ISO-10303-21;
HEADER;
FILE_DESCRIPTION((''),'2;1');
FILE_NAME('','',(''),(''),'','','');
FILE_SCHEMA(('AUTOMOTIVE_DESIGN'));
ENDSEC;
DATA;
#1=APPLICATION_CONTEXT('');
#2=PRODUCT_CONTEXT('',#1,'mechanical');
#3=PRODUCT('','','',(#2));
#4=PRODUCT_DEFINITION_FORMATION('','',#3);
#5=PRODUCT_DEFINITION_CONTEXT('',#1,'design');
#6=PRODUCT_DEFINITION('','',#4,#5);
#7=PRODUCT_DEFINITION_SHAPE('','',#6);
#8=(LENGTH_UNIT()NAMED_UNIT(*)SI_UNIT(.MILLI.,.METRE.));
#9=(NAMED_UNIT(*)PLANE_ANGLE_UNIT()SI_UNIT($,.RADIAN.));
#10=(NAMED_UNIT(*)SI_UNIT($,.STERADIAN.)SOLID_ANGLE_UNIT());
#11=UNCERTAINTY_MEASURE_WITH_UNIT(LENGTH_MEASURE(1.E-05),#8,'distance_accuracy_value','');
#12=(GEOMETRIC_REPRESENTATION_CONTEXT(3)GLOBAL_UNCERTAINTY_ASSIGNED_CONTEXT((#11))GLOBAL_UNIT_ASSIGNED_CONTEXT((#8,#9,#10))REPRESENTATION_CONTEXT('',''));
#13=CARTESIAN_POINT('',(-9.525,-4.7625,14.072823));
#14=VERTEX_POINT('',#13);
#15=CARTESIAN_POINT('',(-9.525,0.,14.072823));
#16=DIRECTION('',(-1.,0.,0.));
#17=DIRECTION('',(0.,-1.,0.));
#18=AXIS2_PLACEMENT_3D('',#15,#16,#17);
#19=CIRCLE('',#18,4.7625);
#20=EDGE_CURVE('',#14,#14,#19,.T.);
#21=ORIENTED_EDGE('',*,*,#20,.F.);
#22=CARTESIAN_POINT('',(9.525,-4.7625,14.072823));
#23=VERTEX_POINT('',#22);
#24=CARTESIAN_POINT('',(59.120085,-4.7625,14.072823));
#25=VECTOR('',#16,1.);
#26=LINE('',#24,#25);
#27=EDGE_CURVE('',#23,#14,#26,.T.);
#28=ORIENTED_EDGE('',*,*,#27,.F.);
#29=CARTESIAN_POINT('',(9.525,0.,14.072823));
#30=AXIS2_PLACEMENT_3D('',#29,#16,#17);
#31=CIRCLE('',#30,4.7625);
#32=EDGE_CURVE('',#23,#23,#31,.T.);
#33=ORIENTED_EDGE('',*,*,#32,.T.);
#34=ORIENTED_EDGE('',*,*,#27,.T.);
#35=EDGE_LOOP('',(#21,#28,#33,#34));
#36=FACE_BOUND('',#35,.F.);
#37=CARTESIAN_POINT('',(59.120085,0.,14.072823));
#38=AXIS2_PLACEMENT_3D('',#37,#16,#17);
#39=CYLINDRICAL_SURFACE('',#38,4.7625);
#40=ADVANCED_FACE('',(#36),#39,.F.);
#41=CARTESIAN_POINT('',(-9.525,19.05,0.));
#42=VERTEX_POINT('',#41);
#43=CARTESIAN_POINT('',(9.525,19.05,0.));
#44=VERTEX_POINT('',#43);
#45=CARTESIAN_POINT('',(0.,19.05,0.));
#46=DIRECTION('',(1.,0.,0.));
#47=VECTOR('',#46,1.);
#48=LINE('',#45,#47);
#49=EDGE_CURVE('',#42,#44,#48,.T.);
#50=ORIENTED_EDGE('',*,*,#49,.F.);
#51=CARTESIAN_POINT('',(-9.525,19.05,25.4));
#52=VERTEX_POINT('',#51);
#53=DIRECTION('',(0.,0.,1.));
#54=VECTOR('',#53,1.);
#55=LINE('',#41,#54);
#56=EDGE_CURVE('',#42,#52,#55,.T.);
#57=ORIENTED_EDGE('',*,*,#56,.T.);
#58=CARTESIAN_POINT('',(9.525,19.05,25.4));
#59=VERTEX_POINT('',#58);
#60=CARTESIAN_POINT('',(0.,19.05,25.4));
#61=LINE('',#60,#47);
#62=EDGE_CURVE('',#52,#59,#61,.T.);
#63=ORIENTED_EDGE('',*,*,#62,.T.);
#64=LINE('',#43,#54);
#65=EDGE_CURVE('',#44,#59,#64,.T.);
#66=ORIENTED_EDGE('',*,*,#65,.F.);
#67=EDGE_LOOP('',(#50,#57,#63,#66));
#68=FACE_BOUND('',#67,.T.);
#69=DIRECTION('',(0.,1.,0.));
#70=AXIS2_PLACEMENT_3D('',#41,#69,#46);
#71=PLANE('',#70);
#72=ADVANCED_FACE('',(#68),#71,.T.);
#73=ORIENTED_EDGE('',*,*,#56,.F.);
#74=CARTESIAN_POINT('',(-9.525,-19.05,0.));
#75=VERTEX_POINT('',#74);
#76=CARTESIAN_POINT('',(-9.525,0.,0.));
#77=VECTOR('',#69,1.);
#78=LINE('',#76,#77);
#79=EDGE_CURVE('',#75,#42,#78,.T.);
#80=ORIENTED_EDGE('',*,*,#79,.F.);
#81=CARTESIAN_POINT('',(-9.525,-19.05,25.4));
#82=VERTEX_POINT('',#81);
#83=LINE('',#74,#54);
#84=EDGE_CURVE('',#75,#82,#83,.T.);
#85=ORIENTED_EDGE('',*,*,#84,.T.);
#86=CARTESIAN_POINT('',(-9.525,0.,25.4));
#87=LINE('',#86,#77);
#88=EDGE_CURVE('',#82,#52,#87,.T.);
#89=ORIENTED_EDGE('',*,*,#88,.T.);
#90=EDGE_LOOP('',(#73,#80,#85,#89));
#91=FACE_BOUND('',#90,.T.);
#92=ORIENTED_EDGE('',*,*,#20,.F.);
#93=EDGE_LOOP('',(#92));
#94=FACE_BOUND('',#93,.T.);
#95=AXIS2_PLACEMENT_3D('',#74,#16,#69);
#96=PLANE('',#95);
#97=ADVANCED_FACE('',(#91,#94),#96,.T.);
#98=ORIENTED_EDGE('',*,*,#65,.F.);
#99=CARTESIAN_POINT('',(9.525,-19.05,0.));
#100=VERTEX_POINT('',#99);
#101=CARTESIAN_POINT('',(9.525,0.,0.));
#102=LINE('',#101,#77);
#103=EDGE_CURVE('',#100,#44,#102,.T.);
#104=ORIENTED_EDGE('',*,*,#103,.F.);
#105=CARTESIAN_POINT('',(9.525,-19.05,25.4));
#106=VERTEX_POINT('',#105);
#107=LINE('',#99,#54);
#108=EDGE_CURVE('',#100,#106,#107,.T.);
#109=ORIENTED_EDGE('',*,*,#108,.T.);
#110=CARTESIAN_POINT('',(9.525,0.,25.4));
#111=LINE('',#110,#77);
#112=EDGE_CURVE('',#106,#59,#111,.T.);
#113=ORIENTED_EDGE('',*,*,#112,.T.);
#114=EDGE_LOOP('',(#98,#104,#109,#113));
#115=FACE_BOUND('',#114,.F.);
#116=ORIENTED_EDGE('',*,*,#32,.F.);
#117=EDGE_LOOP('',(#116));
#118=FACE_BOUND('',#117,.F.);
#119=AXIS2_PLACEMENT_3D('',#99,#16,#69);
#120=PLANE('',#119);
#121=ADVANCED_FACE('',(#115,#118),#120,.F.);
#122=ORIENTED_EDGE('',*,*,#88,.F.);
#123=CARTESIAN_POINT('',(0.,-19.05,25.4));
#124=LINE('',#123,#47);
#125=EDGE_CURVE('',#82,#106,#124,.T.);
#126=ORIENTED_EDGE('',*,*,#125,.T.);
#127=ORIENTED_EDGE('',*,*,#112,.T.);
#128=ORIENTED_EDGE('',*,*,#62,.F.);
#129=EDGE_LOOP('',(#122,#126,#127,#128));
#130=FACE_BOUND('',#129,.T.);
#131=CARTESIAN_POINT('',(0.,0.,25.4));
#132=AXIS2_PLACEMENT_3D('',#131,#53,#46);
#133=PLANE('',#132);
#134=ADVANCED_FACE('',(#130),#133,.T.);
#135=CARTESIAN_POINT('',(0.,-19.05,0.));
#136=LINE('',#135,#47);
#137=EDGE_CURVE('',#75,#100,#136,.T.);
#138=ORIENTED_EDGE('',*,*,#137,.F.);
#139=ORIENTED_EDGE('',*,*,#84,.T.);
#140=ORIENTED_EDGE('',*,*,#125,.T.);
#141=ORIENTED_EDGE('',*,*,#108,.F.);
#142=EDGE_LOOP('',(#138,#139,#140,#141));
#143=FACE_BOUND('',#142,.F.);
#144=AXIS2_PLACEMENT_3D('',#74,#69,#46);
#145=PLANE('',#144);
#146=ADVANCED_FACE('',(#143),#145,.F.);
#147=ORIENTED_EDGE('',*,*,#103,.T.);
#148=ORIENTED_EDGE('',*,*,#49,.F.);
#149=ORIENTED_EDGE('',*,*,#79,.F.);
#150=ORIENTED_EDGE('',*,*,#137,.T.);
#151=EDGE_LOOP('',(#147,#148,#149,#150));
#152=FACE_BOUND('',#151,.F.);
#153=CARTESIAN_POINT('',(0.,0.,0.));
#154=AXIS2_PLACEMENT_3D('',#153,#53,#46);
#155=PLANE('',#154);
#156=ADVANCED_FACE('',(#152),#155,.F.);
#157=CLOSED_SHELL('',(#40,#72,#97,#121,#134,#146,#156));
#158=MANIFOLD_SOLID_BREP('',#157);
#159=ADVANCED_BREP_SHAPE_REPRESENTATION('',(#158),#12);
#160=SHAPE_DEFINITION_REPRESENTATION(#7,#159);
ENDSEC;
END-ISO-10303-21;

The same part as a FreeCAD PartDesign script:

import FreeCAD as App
import Part
import Sketcher
Q = App.Units.Quantity

doc = App.newDocument("Part")
body = doc.addObject("PartDesign::Body", "Body")

sketch1 = doc.addObject("Sketcher::SketchObject", "Sketch")
body.addObject(sketch1)
sketch1.AttachmentSupport = (doc.XY_Plane, [""])
sketch1.MapMode = "FlatFace"
sketch1.addGeometry([
    Part.LineSegment(App.Vector(-10, 19, 0), App.Vector(-10, -19, 0)),
    Part.LineSegment(App.Vector(-10, -19, 0), App.Vector(10, -19, 0)),
    Part.LineSegment(App.Vector(10, -19, 0), App.Vector(10, 19, 0)),
    Part.LineSegment(App.Vector(10, 19, 0), App.Vector(-10, 19, 0)),
], False)
sketch1.addConstraint([
    Sketcher.Constraint("Coincident", 0, 2, 1, 1),
    Sketcher.Constraint("Coincident", 1, 2, 2, 1),
    Sketcher.Constraint("Coincident", 2, 2, 3, 1),
    Sketcher.Constraint("Coincident", 3, 2, 0, 1),
    Sketcher.Constraint("Vertical", 0),
    Sketcher.Constraint("Horizontal", 1),
    Sketcher.Constraint("Vertical", 2),
    Sketcher.Constraint("Horizontal", 3),
    Sketcher.Constraint("Symmetric", 0, 2, 2, 2, -1, 1),
    Sketcher.Constraint("DistanceY", 0, 2, 0, 1, Q("1.5 in")),
    Sketcher.Constraint("DistanceX", 1, 1, 1, 2, Q("0.75 in")),
])
pad1 = doc.addObject("PartDesign::Pad", "Pad")
body.addObject(pad1)
pad1.Profile = sketch1
pad1.Length = Q("1 in")

sketch2 = doc.addObject("Sketcher::SketchObject", "Sketch001")
body.addObject(sketch2)
sketch2.AttachmentSupport = (doc.YZ_Plane, [""])
sketch2.MapMode = "FlatFace"
sketch2.AttachmentOffset = App.Placement(App.Vector(0, 0, 0.375 * 25.4), App.Rotation())
sketch2.addGeometry(Part.Circle(App.Vector(0, 14.1, 0), App.Vector(0, 0, 1), 4.8), False)
sketch2.addConstraint([
    Sketcher.Constraint("PointOnObject", 0, 3, -2),
    Sketcher.Constraint("Diameter", 0, Q("0.375 in")),
    Sketcher.Constraint("DistanceY", -1, 1, 0, 3, Q("14.072823 mm")),
])
doc.recompute()
hole = doc.addObject("PartDesign::Hole", "Hole")
body.addObject(hole)
hole.Profile = sketch2
hole.ThreadType = "None"
hole.Diameter = Q("0.375 in")
hole.DepthType = "ThroughAll"

doc.recompute()
